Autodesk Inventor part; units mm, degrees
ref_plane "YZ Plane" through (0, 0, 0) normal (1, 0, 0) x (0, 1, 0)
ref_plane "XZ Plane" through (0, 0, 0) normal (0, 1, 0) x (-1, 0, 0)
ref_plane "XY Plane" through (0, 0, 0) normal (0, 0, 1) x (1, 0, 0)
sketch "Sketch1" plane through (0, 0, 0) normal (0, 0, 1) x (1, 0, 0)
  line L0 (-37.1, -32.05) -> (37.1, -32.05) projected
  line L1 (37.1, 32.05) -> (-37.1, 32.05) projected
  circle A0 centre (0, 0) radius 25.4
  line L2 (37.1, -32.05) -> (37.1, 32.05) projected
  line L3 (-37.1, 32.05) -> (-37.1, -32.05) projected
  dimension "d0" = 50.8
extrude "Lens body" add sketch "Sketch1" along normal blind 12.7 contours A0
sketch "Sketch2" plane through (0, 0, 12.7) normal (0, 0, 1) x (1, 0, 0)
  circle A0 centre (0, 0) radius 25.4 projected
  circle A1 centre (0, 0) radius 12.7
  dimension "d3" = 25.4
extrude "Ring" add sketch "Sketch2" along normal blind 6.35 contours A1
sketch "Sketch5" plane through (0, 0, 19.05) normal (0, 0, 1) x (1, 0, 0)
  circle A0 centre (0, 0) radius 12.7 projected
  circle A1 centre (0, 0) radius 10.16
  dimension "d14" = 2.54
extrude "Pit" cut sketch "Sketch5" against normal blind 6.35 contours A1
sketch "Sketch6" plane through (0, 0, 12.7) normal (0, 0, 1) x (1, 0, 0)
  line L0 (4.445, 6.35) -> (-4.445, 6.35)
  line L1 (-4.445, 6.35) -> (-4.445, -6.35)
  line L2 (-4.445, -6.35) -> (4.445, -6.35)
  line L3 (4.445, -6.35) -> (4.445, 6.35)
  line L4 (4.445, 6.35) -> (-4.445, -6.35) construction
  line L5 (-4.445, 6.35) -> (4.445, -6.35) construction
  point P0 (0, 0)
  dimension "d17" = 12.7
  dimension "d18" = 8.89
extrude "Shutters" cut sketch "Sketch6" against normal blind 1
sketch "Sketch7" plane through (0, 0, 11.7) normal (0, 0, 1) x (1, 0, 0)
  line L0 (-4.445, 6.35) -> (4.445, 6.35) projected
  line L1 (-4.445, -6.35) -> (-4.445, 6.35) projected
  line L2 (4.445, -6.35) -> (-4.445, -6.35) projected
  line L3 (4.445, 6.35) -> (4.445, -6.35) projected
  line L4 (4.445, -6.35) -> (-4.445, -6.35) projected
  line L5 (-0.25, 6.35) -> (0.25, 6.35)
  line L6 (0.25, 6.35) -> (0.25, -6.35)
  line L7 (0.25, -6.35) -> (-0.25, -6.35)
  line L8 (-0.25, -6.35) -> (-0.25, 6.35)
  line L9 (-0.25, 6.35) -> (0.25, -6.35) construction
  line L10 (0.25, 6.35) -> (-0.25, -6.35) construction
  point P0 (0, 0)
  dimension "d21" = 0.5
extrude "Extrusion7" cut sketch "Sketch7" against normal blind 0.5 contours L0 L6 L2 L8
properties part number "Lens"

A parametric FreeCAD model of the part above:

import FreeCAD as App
import Part
import Sketcher
from FreeCAD import Vector
Q = App.Units.Quantity

doc = App.newDocument("Part")
body = doc.addObject("PartDesign::Body", "Body")

sketch1 = doc.addObject("Sketcher::SketchObject", "Sketch")
body.addObject(sketch1)
sketch1.AttachmentSupport = (doc.XY_Plane, [""])
sketch1.MapMode = "FlatFace"
sketch1.addGeometry(Part.Circle(Vector(0, 0, 0), Vector(0, 0, 1), 25), False)
sketch1.addConstraint(Sketcher.Constraint("Coincident", 0, 3, -1, 1))
sketch1.addConstraint(Sketcher.Constraint("Diameter", 0, Q("2 in")))
pad1 = doc.addObject("PartDesign::Pad", "Pad")
body.addObject(pad1)
pad1.Profile = sketch1
pad1.Length = Q("0.5 in")

sketch2 = doc.addObject("Sketcher::SketchObject", "Sketch001")
body.addObject(sketch2)
sketch2.AttachmentSupport = (doc.XY_Plane, [""])
sketch2.MapMode = "FlatFace"
sketch2.AttachmentOffset = App.Placement(Vector(0, 0, 0.5 * 25.4), App.Rotation())
sketch2.addGeometry(Part.Circle(Vector(0, 0, 0), Vector(0, 0, 1), 13), False)
sketch2.addConstraint(Sketcher.Constraint("Coincident", 0, 3, -1, 1))
sketch2.addConstraint(Sketcher.Constraint("Diameter", 0, Q("1 in")))
pad2 = doc.addObject("PartDesign::Pad", "Pad001")
body.addObject(pad2)
pad2.Profile = sketch2
pad2.Length = Q("0.25 in")

sketch3 = doc.addObject("Sketcher::SketchObject", "Sketch002")
body.addObject(sketch3)
sketch3.AttachmentSupport = (doc.XY_Plane, [""])
sketch3.MapMode = "FlatFace"
sketch3.AttachmentOffset = App.Placement(Vector(0, 0, 0.75 * 25.4), App.Rotation())
sketch3.addGeometry(Part.Circle(Vector(0, 0, 0), Vector(0, 0, 1), 10), False)
sketch3.addConstraint(Sketcher.Constraint("Coincident", 0, 3, -1, 1))
sketch3.addConstraint(Sketcher.Constraint("Diameter", 0, Q("0.8 in")))
pocket1 = doc.addObject("PartDesign::Pocket", "Pocket")
body.addObject(pocket1)
pocket1.Profile = sketch3
pocket1.Length = Q("0.25 in")

sketch4 = doc.addObject("Sketcher::SketchObject", "Sketch003")
body.addObject(sketch4)
sketch4.AttachmentSupport = (doc.XY_Plane, [""])
sketch4.MapMode = "FlatFace"
sketch4.AttachmentOffset = App.Placement(Vector(0, 0, 0.5 * 25.4), App.Rotation())
sketch4.addGeometry(Part.LineSegment(Vector(4, -6, 0), Vector(4, 6, 0)), False)
sketch4.addGeometry(Part.LineSegment(Vector(4, 6, 0), Vector(-4, 6, 0)), False)
sketch4.addGeometry(Part.LineSegment(Vector(-4, 6, 0), Vector(-4, -6, 0)), False)
sketch4.addGeometry(Part.LineSegment(Vector(-4, -6, 0), Vector(4, -6, 0)), False)
sketch4.addConstraint(Sketcher.Constraint("Coincident", 0, 2, 1, 1))
sketch4.addConstraint(Sketcher.Constraint("Coincident", 1, 2, 2, 1))
sketch4.addConstraint(Sketcher.Constraint("Coincident", 2, 2, 3, 1))
sketch4.addConstraint(Sketcher.Constraint("Coincident", 3, 2, 0, 1))
sketch4.addConstraint(Sketcher.Constraint("Vertical", 0))
sketch4.addConstraint(Sketcher.Constraint("Horizontal", 1))
sketch4.addConstraint(Sketcher.Constraint("Vertical", 2))
sketch4.addConstraint(Sketcher.Constraint("Horizontal", 3))
sketch4.addConstraint(Sketcher.Constraint("Symmetric", 0, 2, 2, 2, -1, 1))
sketch4.addConstraint(Sketcher.Constraint("DistanceY", 0, 1, 0, 2, Q("0.5 in")))
sketch4.addConstraint(Sketcher.Constraint("DistanceX", 1, 2, 1, 1, Q("0.35 in")))
pocket2 = doc.addObject("PartDesign::Pocket", "Pocket001")
body.addObject(pocket2)
pocket2.Profile = sketch4
pocket2.Length = 1

sketch5 = doc.addObject("Sketcher::SketchObject", "Sketch004")
body.addObject(sketch5)
sketch5.AttachmentSupport = (doc.XY_Plane, [""])
sketch5.MapMode = "FlatFace"
sketch5.AttachmentOffset = App.Placement(Vector(0, 0, 11.7), App.Rotation())
sketch5.addGeometry(Part.LineSegment(Vector(0.2, 6.3, 0), Vector(-0.2, 6.3, 0)), False)
sketch5.addGeometry(Part.LineSegment(Vector(-0.2, 6.3, 0), Vector(-0.2, -6.3, 0)), False)
sketch5.addGeometry(Part.LineSegment(Vector(-0.2, -6.3, 0), Vector(0.2, -6.3, 0)), False)
sketch5.addGeometry(Part.LineSegment(Vector(0.2, -6.3, 0), Vector(0.2, 6.3, 0)), False)
sketch5.addConstraint(Sketcher.Constraint("Coincident", 0, 2, 1, 1))
sketch5.addConstraint(Sketcher.Constraint("Coincident", 1, 2, 2, 1))
sketch5.addConstraint(Sketcher.Constraint("Coincident", 2, 2, 3, 1))
sketch5.addConstraint(Sketcher.Constraint("Coincident", 3, 2, 0, 1))
sketch5.addConstraint(Sketcher.Constraint("Horizontal", 0))
sketch5.addConstraint(Sketcher.Constraint("Vertical", 1))
sketch5.addConstraint(Sketcher.Constraint("Horizontal", 2))
sketch5.addConstraint(Sketcher.Constraint("Vertical", 3))
sketch5.addConstraint(Sketcher.Constraint("Symmetric", 0, 2, 2, 2, -1, 1))
sketch5.addConstraint(Sketcher.Constraint("DistanceY", 1, 2, 1, 1, Q("0.5 in")))
sketch5.addConstraint(Sketcher.Constraint("DistanceX", 0, 2, 0, 1, 0.5))
pocket3 = doc.addObject("PartDesign::Pocket", "Pocket002")
body.addObject(pocket3)
pocket3.Profile = sketch5
pocket3.Length = 0.5

doc.recompute()
